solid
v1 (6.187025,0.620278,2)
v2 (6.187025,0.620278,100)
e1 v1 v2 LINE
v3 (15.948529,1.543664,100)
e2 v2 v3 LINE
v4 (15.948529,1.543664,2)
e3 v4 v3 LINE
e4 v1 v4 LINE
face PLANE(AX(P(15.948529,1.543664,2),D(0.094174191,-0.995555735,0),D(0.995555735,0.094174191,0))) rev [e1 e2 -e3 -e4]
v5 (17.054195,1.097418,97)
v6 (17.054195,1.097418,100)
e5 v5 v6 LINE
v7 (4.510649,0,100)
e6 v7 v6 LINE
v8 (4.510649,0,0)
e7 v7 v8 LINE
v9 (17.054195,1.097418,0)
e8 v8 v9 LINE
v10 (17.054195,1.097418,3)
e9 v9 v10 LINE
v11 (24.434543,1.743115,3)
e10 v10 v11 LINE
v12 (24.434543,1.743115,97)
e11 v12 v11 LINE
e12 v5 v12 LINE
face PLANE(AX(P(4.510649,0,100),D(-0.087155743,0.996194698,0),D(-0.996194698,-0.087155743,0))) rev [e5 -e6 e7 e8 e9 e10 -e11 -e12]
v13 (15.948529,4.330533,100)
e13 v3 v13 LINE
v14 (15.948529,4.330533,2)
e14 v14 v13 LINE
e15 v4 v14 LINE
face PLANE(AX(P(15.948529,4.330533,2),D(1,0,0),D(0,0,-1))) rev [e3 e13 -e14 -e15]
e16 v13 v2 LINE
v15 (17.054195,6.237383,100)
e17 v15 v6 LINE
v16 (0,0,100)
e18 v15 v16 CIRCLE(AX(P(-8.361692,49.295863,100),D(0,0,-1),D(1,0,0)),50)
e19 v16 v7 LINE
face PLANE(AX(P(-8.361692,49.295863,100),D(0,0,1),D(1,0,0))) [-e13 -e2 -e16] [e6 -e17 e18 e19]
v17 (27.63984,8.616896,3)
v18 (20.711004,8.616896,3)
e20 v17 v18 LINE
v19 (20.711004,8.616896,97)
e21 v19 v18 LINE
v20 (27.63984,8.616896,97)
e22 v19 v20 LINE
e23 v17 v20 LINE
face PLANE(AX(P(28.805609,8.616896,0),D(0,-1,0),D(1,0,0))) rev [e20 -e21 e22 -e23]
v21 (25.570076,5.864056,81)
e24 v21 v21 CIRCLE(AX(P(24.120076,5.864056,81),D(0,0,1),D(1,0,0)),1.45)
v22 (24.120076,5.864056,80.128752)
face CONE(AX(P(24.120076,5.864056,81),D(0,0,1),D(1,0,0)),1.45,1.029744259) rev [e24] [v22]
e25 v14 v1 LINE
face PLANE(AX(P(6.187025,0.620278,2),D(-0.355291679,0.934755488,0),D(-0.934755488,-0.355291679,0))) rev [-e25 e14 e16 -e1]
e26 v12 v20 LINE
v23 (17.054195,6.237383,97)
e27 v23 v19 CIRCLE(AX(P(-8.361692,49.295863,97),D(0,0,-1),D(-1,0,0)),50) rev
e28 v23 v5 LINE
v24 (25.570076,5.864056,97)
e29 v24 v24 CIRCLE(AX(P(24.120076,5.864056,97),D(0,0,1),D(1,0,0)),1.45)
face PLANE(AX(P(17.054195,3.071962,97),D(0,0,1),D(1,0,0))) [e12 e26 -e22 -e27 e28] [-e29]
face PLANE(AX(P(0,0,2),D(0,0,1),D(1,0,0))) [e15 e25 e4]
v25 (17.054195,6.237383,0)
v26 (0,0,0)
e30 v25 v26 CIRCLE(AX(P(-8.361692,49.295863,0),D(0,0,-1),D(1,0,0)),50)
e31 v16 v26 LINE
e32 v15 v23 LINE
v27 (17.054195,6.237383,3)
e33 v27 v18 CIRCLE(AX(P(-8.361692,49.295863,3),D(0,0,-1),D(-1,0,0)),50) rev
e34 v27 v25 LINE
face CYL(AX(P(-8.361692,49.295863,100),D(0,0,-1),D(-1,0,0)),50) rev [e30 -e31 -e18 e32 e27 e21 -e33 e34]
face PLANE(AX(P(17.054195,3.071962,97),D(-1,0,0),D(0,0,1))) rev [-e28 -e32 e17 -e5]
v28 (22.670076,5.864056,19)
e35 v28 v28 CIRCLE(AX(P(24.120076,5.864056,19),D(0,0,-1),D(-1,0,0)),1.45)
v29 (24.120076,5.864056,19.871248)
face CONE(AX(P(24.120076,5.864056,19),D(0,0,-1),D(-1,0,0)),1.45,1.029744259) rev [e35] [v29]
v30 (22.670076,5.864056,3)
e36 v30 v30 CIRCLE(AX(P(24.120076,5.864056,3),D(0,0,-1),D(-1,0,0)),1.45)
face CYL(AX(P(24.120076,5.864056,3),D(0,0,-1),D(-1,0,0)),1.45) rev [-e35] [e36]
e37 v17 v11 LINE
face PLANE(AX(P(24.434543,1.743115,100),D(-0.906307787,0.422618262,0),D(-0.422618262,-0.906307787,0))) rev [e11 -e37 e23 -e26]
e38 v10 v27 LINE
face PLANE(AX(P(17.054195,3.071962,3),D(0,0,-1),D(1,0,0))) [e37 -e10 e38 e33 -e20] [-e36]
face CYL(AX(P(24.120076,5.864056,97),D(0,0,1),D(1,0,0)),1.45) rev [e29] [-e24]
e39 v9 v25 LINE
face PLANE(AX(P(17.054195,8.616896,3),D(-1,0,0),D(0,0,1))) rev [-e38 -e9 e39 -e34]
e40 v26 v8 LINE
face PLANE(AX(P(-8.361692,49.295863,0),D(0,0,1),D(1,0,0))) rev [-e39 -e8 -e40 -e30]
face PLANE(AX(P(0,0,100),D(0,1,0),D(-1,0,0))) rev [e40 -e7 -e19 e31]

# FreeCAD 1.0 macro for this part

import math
import FreeCAD as App
import Part
import Sketcher
Q = App.Units.Quantity


def add_polygon(sketch, points):
    """Adds a closed chain of lines whose ends are joined by coincident constraints."""
    first, n = sketch.GeometryCount, len(points)
    for a, b in zip(points, points[1:] + points[:1]):
        sketch.addGeometry(Part.LineSegment(App.Vector(*a, 0), App.Vector(*b, 0)), False)
    for i in range(n):
        sketch.addConstraint(Sketcher.Constraint("Coincident", first + i, 2, first + (i + 1) % n, 1))

doc = App.newDocument("Part")
body = doc.addObject("PartDesign::Body", "Body")

# Sketch on XY plane
sketch1 = body.newObject("Sketcher::SketchObject", "Sketch")
sketch1.AttachmentSupport = (doc.getObject("XY_Plane"), [""])
sketch1.MapMode = "FlatFace"
sketch1.addGeometry(Part.LineSegment(App.Vector(24.434543, 1.743115, 0), App.Vector(35, 24.40081, 0)), False)
sketch1.addGeometry(Part.ArcOfCircle(Part.Circle(App.Vector(-8.361692, 49.295863, 0), App.Vector(0, 0, 1), 50), math.radians(-80.372973), math.radians(-29.861233)), False)
sketch1.addGeometry(Part.LineSegment(App.Vector(0, 0, 0), App.Vector(4.510649, 0, 0)), False)
sketch1.addGeometry(Part.LineSegment(App.Vector(4.510649, 0, 0), App.Vector(24.434543, 1.743115, 0)), False)
sketch1.addConstraint(Sketcher.Constraint("Coincident", 0, 2, 1, 2))
sketch1.addConstraint(Sketcher.Constraint("Coincident", 1, 1, 2, 1))
sketch1.addConstraint(Sketcher.Constraint("Coincident", 2, 2, 3, 1))
sketch1.addConstraint(Sketcher.Constraint("Coincident", 3, 2, 0, 1))
sketch1.addConstraint(Sketcher.Constraint("Horizontal", 2))
sketch1.addConstraint(Sketcher.Constraint("Coincident", 1, 1, -1, 1))
sketch1.addConstraint(Sketcher.Constraint("Radius", 1, Q("50 mm")))
sketch1.addConstraint(Sketcher.Constraint("Angle", 0, Q("65 deg")))
sketch1.addConstraint(Sketcher.Constraint("Angle", 3, Q("5 deg")))
sketch1.addConstraint(Sketcher.Constraint("Distance", 0, Q("25 mm")))
sketch1.addConstraint(Sketcher.Constraint("Distance", 3, Q("20 mm")))
sketch1.addConstraint(Sketcher.Constraint("DistanceX", -1, 1, 0, 2, Q("35 mm")))
pad1 = body.newObject("PartDesign::Pad", "Pad")
pad1.Profile = sketch1
pad1.Length = 100

# Sketch on XY plane
sketch2 = body.newObject("Sketcher::SketchObject", "Sketch001")
sketch2.AttachmentSupport = (doc.getObject("XY_Plane"), [""])
sketch2.MapMode = "FlatFace"
sketch2.AttachmentOffset = App.Placement(App.Vector(0, 0, 100), App.Rotation())
add_polygon(sketch2, [(29.084426, 11.066695), (27.084426, 11.426799), (17.054195, 3.071962), (24.434543, 1.743115)])  # lines 0-3
sketch2.addConstraint(Sketcher.Constraint("Parallel", 0, 2))
sketch2.addConstraint(Sketcher.Constraint("DistanceX", 0, 2, 3, 2, Q("2 mm")))
sketch2.addConstraint(Sketcher.Constraint("DistanceY", -1, 1, 0, 2, Q("11.426799 mm")))
sketch2.addConstraint(Sketcher.Constraint("Distance", 0, Q("2.03216 mm")))
sketch2.addConstraint(Sketcher.Constraint("Distance", 3, Q("10.418759 mm")))
sketch2.addConstraint(Sketcher.Constraint("DistanceX", 1, 2, 0, 2, Q("10.03023 mm")))
sketch2.addConstraint(Sketcher.Constraint("DistanceX", 1, 2, 2, 2, Q("7.380348 mm")))
sketch2.addConstraint(Sketcher.Constraint("DistanceX", -1, 1, 0, 2, Q("27.084426 mm")))
pocket1 = body.newObject("PartDesign::Pocket", "Pocket")
pocket1.Profile = sketch2
pocket1.Length = 3
doc.recompute()

datumplane = body.newObject("PartDesign::Plane", "DatumPlane")
datumplane.AttachmentSupport = (doc.getObject("XY_Plane"), [""])
datumplane.MapMode = "FlatFace"
datumplane.AttachmentOffset = App.Placement(App.Vector(0, 0, 50), App.Rotation())
mirrored = body.newObject("PartDesign::Mirrored", "Mirrored")
mirrored.Originals = [pocket1]
mirrored.MirrorPlane = (datumplane, [""])
body.Tip = mirrored

# Sketch on YZ plane
sketch3 = body.newObject("Sketcher::SketchObject", "Sketch002")
sketch3.AttachmentSupport = (doc.getObject("YZ_Plane"), [""])
sketch3.MapMode = "FlatFace"
sketch3.AttachmentOffset = App.Placement(App.Vector(0, 0, 24.120076), App.Rotation())
add_polygon(sketch3, [(5.864056, 80.128752), (5.864056, 97), (4.414056, 97), (4.414056, 81)])  # lines 0-3
sketch3.addGeometry(Part.LineSegment(App.Vector(5.864056, 97, 0), App.Vector(5.864056, 80.128752, 0)), True)  # axis
sketch3.addConstraint(Sketcher.Constraint("Vertical", 0))
sketch3.addConstraint(Sketcher.Constraint("Horizontal", 1))
sketch3.addConstraint(Sketcher.Constraint("Vertical", 2))
sketch3.addConstraint(Sketcher.Constraint("Vertical", 4))
sketch3.addConstraint(Sketcher.Constraint("Coincident", 4, 1, 0, 2))
sketch3.addConstraint(Sketcher.Constraint("Equal", 0, 4))
sketch3.addConstraint(Sketcher.Constraint("DistanceY", 2, 2, 2, 1, Q("16 mm")))
sketch3.addConstraint(Sketcher.Constraint("Angle", 3, Q("-31 deg")))
sketch3.addConstraint(Sketcher.Constraint("DistanceY", -1, 1, 0, 2, Q("97 mm")))
sketch3.addConstraint(Sketcher.Constraint("DistanceX", 1, 2, 1, 1, Q("1.45 mm")))
sketch3.addConstraint(Sketcher.Constraint("DistanceX", -1, 1, 0, 2, Q("5.864056 mm")))
groove = body.newObject("PartDesign::Groove", "Groove")
groove.Profile = sketch3
groove.ReferenceAxis = (sketch3, ["Axis0"])
groove.Angle = 360
doc.recompute()

datumplane2 = body.newObject("PartDesign::Plane", "DatumPlane001")
datumplane2.AttachmentSupport = (doc.getObject("XY_Plane"), [""])
datumplane2.MapMode = "FlatFace"
datumplane2.AttachmentOffset = App.Placement(App.Vector(0, 0, 50), App.Rotation())
mirrored2 = body.newObject("PartDesign::Mirrored", "Mirrored001")
mirrored2.Originals = [groove]
mirrored2.MirrorPlane = (datumplane2, [""])
body.Tip = mirrored2

# Sketch on XY plane
sketch4 = body.newObject("Sketcher::SketchObject", "Sketch003")
sketch4.AttachmentSupport = (doc.getObject("XY_Plane"), [""])
sketch4.MapMode = "FlatFace"
sketch4.AttachmentOffset = App.Placement(App.Vector(0, 0, 100), App.Rotation())
add_polygon(sketch4, [(0, 24.40081), (0, 11.116896), (35, 11.116896), (35, 24.40081)])  # lines 0-3
sketch4.addConstraint(Sketcher.Constraint("Vertical", 0))
sketch4.addConstraint(Sketcher.Constraint("Horizontal", 1))
sketch4.addConstraint(Sketcher.Constraint("Vertical", 2))
sketch4.addConstraint(Sketcher.Constraint("Horizontal", 3))
sketch4.addConstraint(Sketcher.Constraint("PointOnObject", 0, 2, -2))
sketch4.addConstraint(Sketcher.Constraint("DistanceX", 1, 1, 1, 2, Q("35 mm")))
sketch4.addConstraint(Sketcher.Constraint("DistanceY", 0, 2, 0, 1, Q("13.283913 mm")))
sketch4.addConstraint(Sketcher.Constraint("DistanceY", -1, 1, 2, 2, Q("24.40081 mm")))
pocket2 = body.newObject("PartDesign::Pocket", "Pocket001")
pocket2.Profile = sketch4
pocket2.Length = 100

# Sketch on XY plane
sketch5 = body.newObject("Sketcher::SketchObject", "Sketch004")
sketch5.AttachmentSupport = (doc.getObject("XY_Plane"), [""])
sketch5.MapMode = "FlatFace"
sketch5.AttachmentOffset = App.Placement(App.Vector(0, 0, 100), App.Rotation())
add_polygon(sketch5, [(3.90736, 11.116896), (3.90736, 8.616896), (28.805609, 8.616896), (28.805609, 11.116896)])  # lines 0-3
sketch5.addConstraint(Sketcher.Constraint("Vertical", 0))
sketch5.addConstraint(Sketcher.Constraint("Horizontal", 1))
sketch5.addConstraint(Sketcher.Constraint("Vertical", 2))
sketch5.addConstraint(Sketcher.Constraint("Horizontal", 3))
sketch5.addConstraint(Sketcher.Constraint("DistanceY", 0, 2, 0, 1, Q("2.5 mm")))
sketch5.addConstraint(Sketcher.Constraint("DistanceX", 1, 1, 1, 2, Q("24.89825 mm")))
sketch5.addConstraint(Sketcher.Constraint("DistanceX", -1, 1, 0, 2, Q("3.90736 mm")))
sketch5.addConstraint(Sketcher.Constraint("DistanceY", -1, 1, 0, 2, Q("8.616896 mm")))
pocket3 = body.newObject("PartDesign::Pocket", "Pocket002")
pocket3.Profile = sketch5
pocket3.Length = 100

# Sketch on XY plane
sketch6 = body.newObject("Sketcher::SketchObject", "Sketch005")
sketch6.AttachmentSupport = (doc.getObject("XY_Plane"), [""])
sketch6.MapMode = "FlatFace"
sketch6.AttachmentOffset = App.Placement(App.Vector(0, 0, 100), App.Rotation())
add_polygon(sketch6, [(15.948529, 4.330533), (6.187025, 0.620278), (15.948529, 1.543664)])  # lines 0-2
sketch6.addConstraint(Sketcher.Constraint("Vertical", 2))
sketch6.addConstraint(Sketcher.Constraint("DistanceY", 2, 1, 2, 2, Q("2.786869 mm")))
sketch6.addConstraint(Sketcher.Constraint("Distance", 1, Q("9.80508 mm")))
sketch6.addConstraint(Sketcher.Constraint("DistanceX", -1, 1, 1, 2, Q("15.948529 mm")))
sketch6.addConstraint(Sketcher.Constraint("Distance", 0, Q("10.442842 mm")))
sketch6.addConstraint(Sketcher.Constraint("DistanceY", -1, 1, 0, 2, Q("0.620278 mm")))
pocket4 = body.newObject("PartDesign::Pocket", "Pocket003")
pocket4.Profile = sketch6
pocket4.Length = 98

# Sketch on XY plane
sketch7 = body.newObject("Sketcher::SketchObject", "Sketch006")
sketch7.AttachmentSupport = (doc.getObject("XY_Plane"), [""])
sketch7.MapMode = "FlatFace"
sketch7.AttachmentOffset = App.Placement(App.Vector(0, 0, 100), App.Rotation())
add_polygon(sketch7, [(17.054195, 8.616896), (17.054195, 3.071962), (23.711054, 3.071962), (23.711054, 8.616896)])  # lines 0-3
sketch7.addConstraint(Sketcher.Constraint("Vertical", 0))
sketch7.addConstraint(Sketcher.Constraint("Horizontal", 1))
sketch7.addConstraint(Sketcher.Constraint("Vertical", 2))
sketch7.addConstraint(Sketcher.Constraint("Horizontal", 3))
sketch7.addConstraint(Sketcher.Constraint("DistanceX", 1, 1, 1, 2, Q("6.656858 mm")))
sketch7.addConstraint(Sketcher.Constraint("DistanceY", 0, 2, 0, 1, Q("5.544934 mm")))
sketch7.addConstraint(Sketcher.Constraint("DistanceX", -1, 1, 0, 2, Q("17.054195 mm")))
sketch7.addConstraint(Sketcher.Constraint("DistanceY", -1, 1, 0, 2, Q("3.071962 mm")))
pocket5 = body.newObject("PartDesign::Pocket", "Pocket004")
pocket5.Profile = sketch7
pocket5.Length = 3

# Sketch on XY plane
sketch8 = body.newObject("Sketcher::SketchObject", "Sketch007")
sketch8.AttachmentSupport = (doc.getObject("XY_Plane"), [""])
sketch8.MapMode = "FlatFace"
sketch8.AttachmentOffset = App.Placement(App.Vector(0, 0, 100), App.Rotation())
add_polygon(sketch8, [(17.054195, 3.071962), (17.054195, 0), (28.318359, 0), (28.318359, 3.071962)])  # lines 0-3
sketch8.addConstraint(Sketcher.Constraint("Vertical", 0))
sketch8.addConstraint(Sketcher.Constraint("Horizontal", 1))
sketch8.addConstraint(Sketcher.Constraint("Vertical", 2))
sketch8.addConstraint(Sketcher.Constraint("Horizontal", 3))
sketch8.addConstraint(Sketcher.Constraint("PointOnObject", 0, 2, -1))
sketch8.addConstraint(Sketcher.Constraint("DistanceX", 1, 1, 1, 2, Q("11.264164 mm")))
sketch8.addConstraint(Sketcher.Constraint("DistanceY", 0, 2, 0, 1, Q("3.071962 mm")))
sketch8.addConstraint(Sketcher.Constraint("DistanceX", -1, 1, 1, 2, Q("28.318359 mm")))
pocket6 = body.newObject("PartDesign::Pocket", "Pocket005")
pocket6.Profile = sketch8
pocket6.Length = 3

# Sketch on XY plane
sketch9 = body.newObject("Sketcher::SketchObject", "Sketch008")
sketch9.AttachmentSupport = (doc.getObject("XY_Plane"), [""])
sketch9.MapMode = "FlatFace"
add_polygon(sketch9, [(23.711054, 8.616896), (23.711054, 3.071962), (17.054195, 3.071962), (17.054195, 8.616896)])  # lines 0-3
sketch9.addConstraint(Sketcher.Constraint("Vertical", 0))
sketch9.addConstraint(Sketcher.Constraint("Horizontal", 1))
sketch9.addConstraint(Sketcher.Constraint("Vertical", 2))
sketch9.addConstraint(Sketcher.Constraint("Horizontal", 3))
sketch9.addConstraint(Sketcher.Constraint("DistanceX", 1, 2, 1, 1, Q("6.656858 mm")))
sketch9.addConstraint(Sketcher.Constraint("DistanceY", 0, 2, 0, 1, Q("5.544934 mm")))
sketch9.addConstraint(Sketcher.Constraint("DistanceX", -1, 1, 0, 2, Q("23.711054 mm")))
sketch9.addConstraint(Sketcher.Constraint("DistanceY", -1, 1, 0, 2, Q("3.071962 mm")))
pocket7 = body.newObject("PartDesign::Pocket", "Pocket006")
pocket7.Profile = sketch9
pocket7.Length = 3
pocket7.Reversed = True

# Sketch on XY plane
sketch10 = body.newObject("Sketcher::SketchObject", "Sketch009")
sketch10.AttachmentSupport = (doc.getObject("XY_Plane"), [""])
sketch10.MapMode = "FlatFace"
add_polygon(sketch10, [(25.183226, 3.071962), (25.183226, -2.33777), (17.054195, -2.33777), (17.054195, 3.071962)])  # lines 0-3
sketch10.addConstraint(Sketcher.Constraint("Vertical", 0))
sketch10.addConstraint(Sketcher.Constraint("Horizontal", 1))
sketch10.addConstraint(Sketcher.Constraint("Vertical", 2))
sketch10.addConstraint(Sketcher.Constraint("Horizontal", 3))
sketch10.addConstraint(Sketcher.Constraint("DistanceX", 1, 2, 1, 1, Q("8.129031 mm")))
sketch10.addConstraint(Sketcher.Constraint("DistanceY", 0, 2, 0, 1, Q("5.409732 mm")))
sketch10.addConstraint(Sketcher.Constraint("DistanceY", 0, 2, -1, 1, Q("2.33777 mm")))
sketch10.addConstraint(Sketcher.Constraint("DistanceX", -1, 1, 0, 2, Q("25.183226 mm")))
pocket8 = body.newObject("PartDesign::Pocket", "Pocket007")
pocket8.Profile = sketch10
pocket8.Length = 3
pocket8.Reversed = True

doc.recompute()
